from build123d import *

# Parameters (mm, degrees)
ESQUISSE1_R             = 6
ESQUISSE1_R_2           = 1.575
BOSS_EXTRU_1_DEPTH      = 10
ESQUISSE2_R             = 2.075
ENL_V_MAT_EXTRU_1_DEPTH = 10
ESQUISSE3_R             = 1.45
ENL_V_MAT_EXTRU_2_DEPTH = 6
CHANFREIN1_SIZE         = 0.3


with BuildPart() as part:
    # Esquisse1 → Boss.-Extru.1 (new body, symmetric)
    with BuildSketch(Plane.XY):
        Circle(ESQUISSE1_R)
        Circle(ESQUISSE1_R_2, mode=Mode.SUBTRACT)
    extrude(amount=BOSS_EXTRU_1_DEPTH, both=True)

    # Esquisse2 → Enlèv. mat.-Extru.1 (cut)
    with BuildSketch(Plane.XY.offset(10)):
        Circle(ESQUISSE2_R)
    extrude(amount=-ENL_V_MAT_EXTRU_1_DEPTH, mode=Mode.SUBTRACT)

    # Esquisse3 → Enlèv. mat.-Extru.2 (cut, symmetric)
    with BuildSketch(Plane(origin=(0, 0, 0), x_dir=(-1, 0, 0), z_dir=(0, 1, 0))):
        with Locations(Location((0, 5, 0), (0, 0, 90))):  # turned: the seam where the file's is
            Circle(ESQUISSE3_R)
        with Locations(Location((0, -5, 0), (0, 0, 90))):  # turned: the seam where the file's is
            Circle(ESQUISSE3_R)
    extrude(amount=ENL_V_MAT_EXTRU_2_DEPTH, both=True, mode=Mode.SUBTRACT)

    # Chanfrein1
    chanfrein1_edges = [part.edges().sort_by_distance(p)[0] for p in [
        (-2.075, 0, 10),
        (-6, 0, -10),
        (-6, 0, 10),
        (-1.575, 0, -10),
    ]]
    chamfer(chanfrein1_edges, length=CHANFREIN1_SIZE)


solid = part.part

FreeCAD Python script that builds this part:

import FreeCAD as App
import Part
import Sketcher
Q = App.Units.Quantity


def edges_at(feature, points):
    """Names of the edges that pass closest to the given points."""
    edges = feature.Shape.Edges
    near = lambda p: min(range(len(edges)), key=lambda i: edges[i].distToShape(Part.Vertex(*p))[0])
    return sorted({f"Edge{near(p) + 1}" for p in points})

doc = App.newDocument("Part")
body = doc.addObject("PartDesign::Body", "Body")

sketch1 = doc.addObject("Sketcher::SketchObject", "Sketch")
body.addObject(sketch1)
sketch1.AttachmentSupport = (doc.XY_Plane, [""])
sketch1.MapMode = "FlatFace"
sketch1.addGeometry([
    Part.Circle(App.Vector(0, 0, 0), App.Vector(0, 0, 1), 6),
    Part.Circle(App.Vector(0, 0, 0), App.Vector(0, 0, 1), 1.6),
], False)
sketch1.addConstraint([
    Sketcher.Constraint("Coincident", 0, 3, -1, 1),
    Sketcher.Constraint("Coincident", 1, 3, -1, 1),
    Sketcher.Constraint("Diameter", 0, Q("12 mm")),
    Sketcher.Constraint("Diameter", 1, Q("3.15 mm")),
])
pad1 = doc.addObject("PartDesign::Pad", "Pad")
body.addObject(pad1)
pad1.Profile = sketch1
pad1.Length = 20
pad1.Midplane = True

sketch2 = doc.addObject("Sketcher::SketchObject", "Sketch001")
body.addObject(sketch2)
sketch2.AttachmentSupport = (doc.XY_Plane, [""])
sketch2.MapMode = "FlatFace"
sketch2.AttachmentOffset = App.Placement(App.Vector(0, 0, 10), App.Rotation())
sketch2.addGeometry(Part.Circle(App.Vector(0, 0, 0), App.Vector(0, 0, 1), 2.1), False)
sketch2.addConstraint([
    Sketcher.Constraint("Coincident", 0, 3, -1, 1),
    Sketcher.Constraint("Diameter", 0, Q("4.15 mm")),
])
pocket1 = doc.addObject("PartDesign::Pocket", "Pocket")
body.addObject(pocket1)
pocket1.Profile = sketch2
pocket1.Length = 10

sketch3 = doc.addObject("Sketcher::SketchObject", "Sketch002")
body.addObject(sketch3)
sketch3.AttachmentSupport = (doc.XZ_Plane, [""])
sketch3.MapMode = "FlatFace"
sketch3.addGeometry([
    Part.Circle(App.Vector(0, 5, 0), App.Vector(0, 0, 1), 1.4),
    Part.Circle(App.Vector(0, -5, 0), App.Vector(0, 0, 1), 1.4),
], False)
sketch3.addConstraint([
    Sketcher.Constraint("Equal", 0, 1),
    Sketcher.Constraint("Symmetric", 0, 3, 1, 3, -1, 1),
    Sketcher.Constraint("PointOnObject", 0, 3, -2),
    Sketcher.Constraint("Diameter", 0, Q("2.9 mm")),
    Sketcher.Constraint("DistanceY", -1, 1, 0, 3, Q("5 mm")),
])
pocket2 = doc.addObject("PartDesign::Pocket", "Pocket001")
body.addObject(pocket2)
pocket2.Profile = sketch3
pocket2.Length = 12
pocket2.Midplane = True
doc.recompute()

chamfer = doc.addObject("PartDesign::Chamfer", "Chamfer")
body.addObject(chamfer)
chamfer.Base = (pocket2, edges_at(pocket2, [
    (-2.075, 0, 10),
    (-6, 0, -10),
    (-6, 0, 10),
    (-1.575, 0, -10),
]))
chamfer.Size = 0.3

doc.recompute()
